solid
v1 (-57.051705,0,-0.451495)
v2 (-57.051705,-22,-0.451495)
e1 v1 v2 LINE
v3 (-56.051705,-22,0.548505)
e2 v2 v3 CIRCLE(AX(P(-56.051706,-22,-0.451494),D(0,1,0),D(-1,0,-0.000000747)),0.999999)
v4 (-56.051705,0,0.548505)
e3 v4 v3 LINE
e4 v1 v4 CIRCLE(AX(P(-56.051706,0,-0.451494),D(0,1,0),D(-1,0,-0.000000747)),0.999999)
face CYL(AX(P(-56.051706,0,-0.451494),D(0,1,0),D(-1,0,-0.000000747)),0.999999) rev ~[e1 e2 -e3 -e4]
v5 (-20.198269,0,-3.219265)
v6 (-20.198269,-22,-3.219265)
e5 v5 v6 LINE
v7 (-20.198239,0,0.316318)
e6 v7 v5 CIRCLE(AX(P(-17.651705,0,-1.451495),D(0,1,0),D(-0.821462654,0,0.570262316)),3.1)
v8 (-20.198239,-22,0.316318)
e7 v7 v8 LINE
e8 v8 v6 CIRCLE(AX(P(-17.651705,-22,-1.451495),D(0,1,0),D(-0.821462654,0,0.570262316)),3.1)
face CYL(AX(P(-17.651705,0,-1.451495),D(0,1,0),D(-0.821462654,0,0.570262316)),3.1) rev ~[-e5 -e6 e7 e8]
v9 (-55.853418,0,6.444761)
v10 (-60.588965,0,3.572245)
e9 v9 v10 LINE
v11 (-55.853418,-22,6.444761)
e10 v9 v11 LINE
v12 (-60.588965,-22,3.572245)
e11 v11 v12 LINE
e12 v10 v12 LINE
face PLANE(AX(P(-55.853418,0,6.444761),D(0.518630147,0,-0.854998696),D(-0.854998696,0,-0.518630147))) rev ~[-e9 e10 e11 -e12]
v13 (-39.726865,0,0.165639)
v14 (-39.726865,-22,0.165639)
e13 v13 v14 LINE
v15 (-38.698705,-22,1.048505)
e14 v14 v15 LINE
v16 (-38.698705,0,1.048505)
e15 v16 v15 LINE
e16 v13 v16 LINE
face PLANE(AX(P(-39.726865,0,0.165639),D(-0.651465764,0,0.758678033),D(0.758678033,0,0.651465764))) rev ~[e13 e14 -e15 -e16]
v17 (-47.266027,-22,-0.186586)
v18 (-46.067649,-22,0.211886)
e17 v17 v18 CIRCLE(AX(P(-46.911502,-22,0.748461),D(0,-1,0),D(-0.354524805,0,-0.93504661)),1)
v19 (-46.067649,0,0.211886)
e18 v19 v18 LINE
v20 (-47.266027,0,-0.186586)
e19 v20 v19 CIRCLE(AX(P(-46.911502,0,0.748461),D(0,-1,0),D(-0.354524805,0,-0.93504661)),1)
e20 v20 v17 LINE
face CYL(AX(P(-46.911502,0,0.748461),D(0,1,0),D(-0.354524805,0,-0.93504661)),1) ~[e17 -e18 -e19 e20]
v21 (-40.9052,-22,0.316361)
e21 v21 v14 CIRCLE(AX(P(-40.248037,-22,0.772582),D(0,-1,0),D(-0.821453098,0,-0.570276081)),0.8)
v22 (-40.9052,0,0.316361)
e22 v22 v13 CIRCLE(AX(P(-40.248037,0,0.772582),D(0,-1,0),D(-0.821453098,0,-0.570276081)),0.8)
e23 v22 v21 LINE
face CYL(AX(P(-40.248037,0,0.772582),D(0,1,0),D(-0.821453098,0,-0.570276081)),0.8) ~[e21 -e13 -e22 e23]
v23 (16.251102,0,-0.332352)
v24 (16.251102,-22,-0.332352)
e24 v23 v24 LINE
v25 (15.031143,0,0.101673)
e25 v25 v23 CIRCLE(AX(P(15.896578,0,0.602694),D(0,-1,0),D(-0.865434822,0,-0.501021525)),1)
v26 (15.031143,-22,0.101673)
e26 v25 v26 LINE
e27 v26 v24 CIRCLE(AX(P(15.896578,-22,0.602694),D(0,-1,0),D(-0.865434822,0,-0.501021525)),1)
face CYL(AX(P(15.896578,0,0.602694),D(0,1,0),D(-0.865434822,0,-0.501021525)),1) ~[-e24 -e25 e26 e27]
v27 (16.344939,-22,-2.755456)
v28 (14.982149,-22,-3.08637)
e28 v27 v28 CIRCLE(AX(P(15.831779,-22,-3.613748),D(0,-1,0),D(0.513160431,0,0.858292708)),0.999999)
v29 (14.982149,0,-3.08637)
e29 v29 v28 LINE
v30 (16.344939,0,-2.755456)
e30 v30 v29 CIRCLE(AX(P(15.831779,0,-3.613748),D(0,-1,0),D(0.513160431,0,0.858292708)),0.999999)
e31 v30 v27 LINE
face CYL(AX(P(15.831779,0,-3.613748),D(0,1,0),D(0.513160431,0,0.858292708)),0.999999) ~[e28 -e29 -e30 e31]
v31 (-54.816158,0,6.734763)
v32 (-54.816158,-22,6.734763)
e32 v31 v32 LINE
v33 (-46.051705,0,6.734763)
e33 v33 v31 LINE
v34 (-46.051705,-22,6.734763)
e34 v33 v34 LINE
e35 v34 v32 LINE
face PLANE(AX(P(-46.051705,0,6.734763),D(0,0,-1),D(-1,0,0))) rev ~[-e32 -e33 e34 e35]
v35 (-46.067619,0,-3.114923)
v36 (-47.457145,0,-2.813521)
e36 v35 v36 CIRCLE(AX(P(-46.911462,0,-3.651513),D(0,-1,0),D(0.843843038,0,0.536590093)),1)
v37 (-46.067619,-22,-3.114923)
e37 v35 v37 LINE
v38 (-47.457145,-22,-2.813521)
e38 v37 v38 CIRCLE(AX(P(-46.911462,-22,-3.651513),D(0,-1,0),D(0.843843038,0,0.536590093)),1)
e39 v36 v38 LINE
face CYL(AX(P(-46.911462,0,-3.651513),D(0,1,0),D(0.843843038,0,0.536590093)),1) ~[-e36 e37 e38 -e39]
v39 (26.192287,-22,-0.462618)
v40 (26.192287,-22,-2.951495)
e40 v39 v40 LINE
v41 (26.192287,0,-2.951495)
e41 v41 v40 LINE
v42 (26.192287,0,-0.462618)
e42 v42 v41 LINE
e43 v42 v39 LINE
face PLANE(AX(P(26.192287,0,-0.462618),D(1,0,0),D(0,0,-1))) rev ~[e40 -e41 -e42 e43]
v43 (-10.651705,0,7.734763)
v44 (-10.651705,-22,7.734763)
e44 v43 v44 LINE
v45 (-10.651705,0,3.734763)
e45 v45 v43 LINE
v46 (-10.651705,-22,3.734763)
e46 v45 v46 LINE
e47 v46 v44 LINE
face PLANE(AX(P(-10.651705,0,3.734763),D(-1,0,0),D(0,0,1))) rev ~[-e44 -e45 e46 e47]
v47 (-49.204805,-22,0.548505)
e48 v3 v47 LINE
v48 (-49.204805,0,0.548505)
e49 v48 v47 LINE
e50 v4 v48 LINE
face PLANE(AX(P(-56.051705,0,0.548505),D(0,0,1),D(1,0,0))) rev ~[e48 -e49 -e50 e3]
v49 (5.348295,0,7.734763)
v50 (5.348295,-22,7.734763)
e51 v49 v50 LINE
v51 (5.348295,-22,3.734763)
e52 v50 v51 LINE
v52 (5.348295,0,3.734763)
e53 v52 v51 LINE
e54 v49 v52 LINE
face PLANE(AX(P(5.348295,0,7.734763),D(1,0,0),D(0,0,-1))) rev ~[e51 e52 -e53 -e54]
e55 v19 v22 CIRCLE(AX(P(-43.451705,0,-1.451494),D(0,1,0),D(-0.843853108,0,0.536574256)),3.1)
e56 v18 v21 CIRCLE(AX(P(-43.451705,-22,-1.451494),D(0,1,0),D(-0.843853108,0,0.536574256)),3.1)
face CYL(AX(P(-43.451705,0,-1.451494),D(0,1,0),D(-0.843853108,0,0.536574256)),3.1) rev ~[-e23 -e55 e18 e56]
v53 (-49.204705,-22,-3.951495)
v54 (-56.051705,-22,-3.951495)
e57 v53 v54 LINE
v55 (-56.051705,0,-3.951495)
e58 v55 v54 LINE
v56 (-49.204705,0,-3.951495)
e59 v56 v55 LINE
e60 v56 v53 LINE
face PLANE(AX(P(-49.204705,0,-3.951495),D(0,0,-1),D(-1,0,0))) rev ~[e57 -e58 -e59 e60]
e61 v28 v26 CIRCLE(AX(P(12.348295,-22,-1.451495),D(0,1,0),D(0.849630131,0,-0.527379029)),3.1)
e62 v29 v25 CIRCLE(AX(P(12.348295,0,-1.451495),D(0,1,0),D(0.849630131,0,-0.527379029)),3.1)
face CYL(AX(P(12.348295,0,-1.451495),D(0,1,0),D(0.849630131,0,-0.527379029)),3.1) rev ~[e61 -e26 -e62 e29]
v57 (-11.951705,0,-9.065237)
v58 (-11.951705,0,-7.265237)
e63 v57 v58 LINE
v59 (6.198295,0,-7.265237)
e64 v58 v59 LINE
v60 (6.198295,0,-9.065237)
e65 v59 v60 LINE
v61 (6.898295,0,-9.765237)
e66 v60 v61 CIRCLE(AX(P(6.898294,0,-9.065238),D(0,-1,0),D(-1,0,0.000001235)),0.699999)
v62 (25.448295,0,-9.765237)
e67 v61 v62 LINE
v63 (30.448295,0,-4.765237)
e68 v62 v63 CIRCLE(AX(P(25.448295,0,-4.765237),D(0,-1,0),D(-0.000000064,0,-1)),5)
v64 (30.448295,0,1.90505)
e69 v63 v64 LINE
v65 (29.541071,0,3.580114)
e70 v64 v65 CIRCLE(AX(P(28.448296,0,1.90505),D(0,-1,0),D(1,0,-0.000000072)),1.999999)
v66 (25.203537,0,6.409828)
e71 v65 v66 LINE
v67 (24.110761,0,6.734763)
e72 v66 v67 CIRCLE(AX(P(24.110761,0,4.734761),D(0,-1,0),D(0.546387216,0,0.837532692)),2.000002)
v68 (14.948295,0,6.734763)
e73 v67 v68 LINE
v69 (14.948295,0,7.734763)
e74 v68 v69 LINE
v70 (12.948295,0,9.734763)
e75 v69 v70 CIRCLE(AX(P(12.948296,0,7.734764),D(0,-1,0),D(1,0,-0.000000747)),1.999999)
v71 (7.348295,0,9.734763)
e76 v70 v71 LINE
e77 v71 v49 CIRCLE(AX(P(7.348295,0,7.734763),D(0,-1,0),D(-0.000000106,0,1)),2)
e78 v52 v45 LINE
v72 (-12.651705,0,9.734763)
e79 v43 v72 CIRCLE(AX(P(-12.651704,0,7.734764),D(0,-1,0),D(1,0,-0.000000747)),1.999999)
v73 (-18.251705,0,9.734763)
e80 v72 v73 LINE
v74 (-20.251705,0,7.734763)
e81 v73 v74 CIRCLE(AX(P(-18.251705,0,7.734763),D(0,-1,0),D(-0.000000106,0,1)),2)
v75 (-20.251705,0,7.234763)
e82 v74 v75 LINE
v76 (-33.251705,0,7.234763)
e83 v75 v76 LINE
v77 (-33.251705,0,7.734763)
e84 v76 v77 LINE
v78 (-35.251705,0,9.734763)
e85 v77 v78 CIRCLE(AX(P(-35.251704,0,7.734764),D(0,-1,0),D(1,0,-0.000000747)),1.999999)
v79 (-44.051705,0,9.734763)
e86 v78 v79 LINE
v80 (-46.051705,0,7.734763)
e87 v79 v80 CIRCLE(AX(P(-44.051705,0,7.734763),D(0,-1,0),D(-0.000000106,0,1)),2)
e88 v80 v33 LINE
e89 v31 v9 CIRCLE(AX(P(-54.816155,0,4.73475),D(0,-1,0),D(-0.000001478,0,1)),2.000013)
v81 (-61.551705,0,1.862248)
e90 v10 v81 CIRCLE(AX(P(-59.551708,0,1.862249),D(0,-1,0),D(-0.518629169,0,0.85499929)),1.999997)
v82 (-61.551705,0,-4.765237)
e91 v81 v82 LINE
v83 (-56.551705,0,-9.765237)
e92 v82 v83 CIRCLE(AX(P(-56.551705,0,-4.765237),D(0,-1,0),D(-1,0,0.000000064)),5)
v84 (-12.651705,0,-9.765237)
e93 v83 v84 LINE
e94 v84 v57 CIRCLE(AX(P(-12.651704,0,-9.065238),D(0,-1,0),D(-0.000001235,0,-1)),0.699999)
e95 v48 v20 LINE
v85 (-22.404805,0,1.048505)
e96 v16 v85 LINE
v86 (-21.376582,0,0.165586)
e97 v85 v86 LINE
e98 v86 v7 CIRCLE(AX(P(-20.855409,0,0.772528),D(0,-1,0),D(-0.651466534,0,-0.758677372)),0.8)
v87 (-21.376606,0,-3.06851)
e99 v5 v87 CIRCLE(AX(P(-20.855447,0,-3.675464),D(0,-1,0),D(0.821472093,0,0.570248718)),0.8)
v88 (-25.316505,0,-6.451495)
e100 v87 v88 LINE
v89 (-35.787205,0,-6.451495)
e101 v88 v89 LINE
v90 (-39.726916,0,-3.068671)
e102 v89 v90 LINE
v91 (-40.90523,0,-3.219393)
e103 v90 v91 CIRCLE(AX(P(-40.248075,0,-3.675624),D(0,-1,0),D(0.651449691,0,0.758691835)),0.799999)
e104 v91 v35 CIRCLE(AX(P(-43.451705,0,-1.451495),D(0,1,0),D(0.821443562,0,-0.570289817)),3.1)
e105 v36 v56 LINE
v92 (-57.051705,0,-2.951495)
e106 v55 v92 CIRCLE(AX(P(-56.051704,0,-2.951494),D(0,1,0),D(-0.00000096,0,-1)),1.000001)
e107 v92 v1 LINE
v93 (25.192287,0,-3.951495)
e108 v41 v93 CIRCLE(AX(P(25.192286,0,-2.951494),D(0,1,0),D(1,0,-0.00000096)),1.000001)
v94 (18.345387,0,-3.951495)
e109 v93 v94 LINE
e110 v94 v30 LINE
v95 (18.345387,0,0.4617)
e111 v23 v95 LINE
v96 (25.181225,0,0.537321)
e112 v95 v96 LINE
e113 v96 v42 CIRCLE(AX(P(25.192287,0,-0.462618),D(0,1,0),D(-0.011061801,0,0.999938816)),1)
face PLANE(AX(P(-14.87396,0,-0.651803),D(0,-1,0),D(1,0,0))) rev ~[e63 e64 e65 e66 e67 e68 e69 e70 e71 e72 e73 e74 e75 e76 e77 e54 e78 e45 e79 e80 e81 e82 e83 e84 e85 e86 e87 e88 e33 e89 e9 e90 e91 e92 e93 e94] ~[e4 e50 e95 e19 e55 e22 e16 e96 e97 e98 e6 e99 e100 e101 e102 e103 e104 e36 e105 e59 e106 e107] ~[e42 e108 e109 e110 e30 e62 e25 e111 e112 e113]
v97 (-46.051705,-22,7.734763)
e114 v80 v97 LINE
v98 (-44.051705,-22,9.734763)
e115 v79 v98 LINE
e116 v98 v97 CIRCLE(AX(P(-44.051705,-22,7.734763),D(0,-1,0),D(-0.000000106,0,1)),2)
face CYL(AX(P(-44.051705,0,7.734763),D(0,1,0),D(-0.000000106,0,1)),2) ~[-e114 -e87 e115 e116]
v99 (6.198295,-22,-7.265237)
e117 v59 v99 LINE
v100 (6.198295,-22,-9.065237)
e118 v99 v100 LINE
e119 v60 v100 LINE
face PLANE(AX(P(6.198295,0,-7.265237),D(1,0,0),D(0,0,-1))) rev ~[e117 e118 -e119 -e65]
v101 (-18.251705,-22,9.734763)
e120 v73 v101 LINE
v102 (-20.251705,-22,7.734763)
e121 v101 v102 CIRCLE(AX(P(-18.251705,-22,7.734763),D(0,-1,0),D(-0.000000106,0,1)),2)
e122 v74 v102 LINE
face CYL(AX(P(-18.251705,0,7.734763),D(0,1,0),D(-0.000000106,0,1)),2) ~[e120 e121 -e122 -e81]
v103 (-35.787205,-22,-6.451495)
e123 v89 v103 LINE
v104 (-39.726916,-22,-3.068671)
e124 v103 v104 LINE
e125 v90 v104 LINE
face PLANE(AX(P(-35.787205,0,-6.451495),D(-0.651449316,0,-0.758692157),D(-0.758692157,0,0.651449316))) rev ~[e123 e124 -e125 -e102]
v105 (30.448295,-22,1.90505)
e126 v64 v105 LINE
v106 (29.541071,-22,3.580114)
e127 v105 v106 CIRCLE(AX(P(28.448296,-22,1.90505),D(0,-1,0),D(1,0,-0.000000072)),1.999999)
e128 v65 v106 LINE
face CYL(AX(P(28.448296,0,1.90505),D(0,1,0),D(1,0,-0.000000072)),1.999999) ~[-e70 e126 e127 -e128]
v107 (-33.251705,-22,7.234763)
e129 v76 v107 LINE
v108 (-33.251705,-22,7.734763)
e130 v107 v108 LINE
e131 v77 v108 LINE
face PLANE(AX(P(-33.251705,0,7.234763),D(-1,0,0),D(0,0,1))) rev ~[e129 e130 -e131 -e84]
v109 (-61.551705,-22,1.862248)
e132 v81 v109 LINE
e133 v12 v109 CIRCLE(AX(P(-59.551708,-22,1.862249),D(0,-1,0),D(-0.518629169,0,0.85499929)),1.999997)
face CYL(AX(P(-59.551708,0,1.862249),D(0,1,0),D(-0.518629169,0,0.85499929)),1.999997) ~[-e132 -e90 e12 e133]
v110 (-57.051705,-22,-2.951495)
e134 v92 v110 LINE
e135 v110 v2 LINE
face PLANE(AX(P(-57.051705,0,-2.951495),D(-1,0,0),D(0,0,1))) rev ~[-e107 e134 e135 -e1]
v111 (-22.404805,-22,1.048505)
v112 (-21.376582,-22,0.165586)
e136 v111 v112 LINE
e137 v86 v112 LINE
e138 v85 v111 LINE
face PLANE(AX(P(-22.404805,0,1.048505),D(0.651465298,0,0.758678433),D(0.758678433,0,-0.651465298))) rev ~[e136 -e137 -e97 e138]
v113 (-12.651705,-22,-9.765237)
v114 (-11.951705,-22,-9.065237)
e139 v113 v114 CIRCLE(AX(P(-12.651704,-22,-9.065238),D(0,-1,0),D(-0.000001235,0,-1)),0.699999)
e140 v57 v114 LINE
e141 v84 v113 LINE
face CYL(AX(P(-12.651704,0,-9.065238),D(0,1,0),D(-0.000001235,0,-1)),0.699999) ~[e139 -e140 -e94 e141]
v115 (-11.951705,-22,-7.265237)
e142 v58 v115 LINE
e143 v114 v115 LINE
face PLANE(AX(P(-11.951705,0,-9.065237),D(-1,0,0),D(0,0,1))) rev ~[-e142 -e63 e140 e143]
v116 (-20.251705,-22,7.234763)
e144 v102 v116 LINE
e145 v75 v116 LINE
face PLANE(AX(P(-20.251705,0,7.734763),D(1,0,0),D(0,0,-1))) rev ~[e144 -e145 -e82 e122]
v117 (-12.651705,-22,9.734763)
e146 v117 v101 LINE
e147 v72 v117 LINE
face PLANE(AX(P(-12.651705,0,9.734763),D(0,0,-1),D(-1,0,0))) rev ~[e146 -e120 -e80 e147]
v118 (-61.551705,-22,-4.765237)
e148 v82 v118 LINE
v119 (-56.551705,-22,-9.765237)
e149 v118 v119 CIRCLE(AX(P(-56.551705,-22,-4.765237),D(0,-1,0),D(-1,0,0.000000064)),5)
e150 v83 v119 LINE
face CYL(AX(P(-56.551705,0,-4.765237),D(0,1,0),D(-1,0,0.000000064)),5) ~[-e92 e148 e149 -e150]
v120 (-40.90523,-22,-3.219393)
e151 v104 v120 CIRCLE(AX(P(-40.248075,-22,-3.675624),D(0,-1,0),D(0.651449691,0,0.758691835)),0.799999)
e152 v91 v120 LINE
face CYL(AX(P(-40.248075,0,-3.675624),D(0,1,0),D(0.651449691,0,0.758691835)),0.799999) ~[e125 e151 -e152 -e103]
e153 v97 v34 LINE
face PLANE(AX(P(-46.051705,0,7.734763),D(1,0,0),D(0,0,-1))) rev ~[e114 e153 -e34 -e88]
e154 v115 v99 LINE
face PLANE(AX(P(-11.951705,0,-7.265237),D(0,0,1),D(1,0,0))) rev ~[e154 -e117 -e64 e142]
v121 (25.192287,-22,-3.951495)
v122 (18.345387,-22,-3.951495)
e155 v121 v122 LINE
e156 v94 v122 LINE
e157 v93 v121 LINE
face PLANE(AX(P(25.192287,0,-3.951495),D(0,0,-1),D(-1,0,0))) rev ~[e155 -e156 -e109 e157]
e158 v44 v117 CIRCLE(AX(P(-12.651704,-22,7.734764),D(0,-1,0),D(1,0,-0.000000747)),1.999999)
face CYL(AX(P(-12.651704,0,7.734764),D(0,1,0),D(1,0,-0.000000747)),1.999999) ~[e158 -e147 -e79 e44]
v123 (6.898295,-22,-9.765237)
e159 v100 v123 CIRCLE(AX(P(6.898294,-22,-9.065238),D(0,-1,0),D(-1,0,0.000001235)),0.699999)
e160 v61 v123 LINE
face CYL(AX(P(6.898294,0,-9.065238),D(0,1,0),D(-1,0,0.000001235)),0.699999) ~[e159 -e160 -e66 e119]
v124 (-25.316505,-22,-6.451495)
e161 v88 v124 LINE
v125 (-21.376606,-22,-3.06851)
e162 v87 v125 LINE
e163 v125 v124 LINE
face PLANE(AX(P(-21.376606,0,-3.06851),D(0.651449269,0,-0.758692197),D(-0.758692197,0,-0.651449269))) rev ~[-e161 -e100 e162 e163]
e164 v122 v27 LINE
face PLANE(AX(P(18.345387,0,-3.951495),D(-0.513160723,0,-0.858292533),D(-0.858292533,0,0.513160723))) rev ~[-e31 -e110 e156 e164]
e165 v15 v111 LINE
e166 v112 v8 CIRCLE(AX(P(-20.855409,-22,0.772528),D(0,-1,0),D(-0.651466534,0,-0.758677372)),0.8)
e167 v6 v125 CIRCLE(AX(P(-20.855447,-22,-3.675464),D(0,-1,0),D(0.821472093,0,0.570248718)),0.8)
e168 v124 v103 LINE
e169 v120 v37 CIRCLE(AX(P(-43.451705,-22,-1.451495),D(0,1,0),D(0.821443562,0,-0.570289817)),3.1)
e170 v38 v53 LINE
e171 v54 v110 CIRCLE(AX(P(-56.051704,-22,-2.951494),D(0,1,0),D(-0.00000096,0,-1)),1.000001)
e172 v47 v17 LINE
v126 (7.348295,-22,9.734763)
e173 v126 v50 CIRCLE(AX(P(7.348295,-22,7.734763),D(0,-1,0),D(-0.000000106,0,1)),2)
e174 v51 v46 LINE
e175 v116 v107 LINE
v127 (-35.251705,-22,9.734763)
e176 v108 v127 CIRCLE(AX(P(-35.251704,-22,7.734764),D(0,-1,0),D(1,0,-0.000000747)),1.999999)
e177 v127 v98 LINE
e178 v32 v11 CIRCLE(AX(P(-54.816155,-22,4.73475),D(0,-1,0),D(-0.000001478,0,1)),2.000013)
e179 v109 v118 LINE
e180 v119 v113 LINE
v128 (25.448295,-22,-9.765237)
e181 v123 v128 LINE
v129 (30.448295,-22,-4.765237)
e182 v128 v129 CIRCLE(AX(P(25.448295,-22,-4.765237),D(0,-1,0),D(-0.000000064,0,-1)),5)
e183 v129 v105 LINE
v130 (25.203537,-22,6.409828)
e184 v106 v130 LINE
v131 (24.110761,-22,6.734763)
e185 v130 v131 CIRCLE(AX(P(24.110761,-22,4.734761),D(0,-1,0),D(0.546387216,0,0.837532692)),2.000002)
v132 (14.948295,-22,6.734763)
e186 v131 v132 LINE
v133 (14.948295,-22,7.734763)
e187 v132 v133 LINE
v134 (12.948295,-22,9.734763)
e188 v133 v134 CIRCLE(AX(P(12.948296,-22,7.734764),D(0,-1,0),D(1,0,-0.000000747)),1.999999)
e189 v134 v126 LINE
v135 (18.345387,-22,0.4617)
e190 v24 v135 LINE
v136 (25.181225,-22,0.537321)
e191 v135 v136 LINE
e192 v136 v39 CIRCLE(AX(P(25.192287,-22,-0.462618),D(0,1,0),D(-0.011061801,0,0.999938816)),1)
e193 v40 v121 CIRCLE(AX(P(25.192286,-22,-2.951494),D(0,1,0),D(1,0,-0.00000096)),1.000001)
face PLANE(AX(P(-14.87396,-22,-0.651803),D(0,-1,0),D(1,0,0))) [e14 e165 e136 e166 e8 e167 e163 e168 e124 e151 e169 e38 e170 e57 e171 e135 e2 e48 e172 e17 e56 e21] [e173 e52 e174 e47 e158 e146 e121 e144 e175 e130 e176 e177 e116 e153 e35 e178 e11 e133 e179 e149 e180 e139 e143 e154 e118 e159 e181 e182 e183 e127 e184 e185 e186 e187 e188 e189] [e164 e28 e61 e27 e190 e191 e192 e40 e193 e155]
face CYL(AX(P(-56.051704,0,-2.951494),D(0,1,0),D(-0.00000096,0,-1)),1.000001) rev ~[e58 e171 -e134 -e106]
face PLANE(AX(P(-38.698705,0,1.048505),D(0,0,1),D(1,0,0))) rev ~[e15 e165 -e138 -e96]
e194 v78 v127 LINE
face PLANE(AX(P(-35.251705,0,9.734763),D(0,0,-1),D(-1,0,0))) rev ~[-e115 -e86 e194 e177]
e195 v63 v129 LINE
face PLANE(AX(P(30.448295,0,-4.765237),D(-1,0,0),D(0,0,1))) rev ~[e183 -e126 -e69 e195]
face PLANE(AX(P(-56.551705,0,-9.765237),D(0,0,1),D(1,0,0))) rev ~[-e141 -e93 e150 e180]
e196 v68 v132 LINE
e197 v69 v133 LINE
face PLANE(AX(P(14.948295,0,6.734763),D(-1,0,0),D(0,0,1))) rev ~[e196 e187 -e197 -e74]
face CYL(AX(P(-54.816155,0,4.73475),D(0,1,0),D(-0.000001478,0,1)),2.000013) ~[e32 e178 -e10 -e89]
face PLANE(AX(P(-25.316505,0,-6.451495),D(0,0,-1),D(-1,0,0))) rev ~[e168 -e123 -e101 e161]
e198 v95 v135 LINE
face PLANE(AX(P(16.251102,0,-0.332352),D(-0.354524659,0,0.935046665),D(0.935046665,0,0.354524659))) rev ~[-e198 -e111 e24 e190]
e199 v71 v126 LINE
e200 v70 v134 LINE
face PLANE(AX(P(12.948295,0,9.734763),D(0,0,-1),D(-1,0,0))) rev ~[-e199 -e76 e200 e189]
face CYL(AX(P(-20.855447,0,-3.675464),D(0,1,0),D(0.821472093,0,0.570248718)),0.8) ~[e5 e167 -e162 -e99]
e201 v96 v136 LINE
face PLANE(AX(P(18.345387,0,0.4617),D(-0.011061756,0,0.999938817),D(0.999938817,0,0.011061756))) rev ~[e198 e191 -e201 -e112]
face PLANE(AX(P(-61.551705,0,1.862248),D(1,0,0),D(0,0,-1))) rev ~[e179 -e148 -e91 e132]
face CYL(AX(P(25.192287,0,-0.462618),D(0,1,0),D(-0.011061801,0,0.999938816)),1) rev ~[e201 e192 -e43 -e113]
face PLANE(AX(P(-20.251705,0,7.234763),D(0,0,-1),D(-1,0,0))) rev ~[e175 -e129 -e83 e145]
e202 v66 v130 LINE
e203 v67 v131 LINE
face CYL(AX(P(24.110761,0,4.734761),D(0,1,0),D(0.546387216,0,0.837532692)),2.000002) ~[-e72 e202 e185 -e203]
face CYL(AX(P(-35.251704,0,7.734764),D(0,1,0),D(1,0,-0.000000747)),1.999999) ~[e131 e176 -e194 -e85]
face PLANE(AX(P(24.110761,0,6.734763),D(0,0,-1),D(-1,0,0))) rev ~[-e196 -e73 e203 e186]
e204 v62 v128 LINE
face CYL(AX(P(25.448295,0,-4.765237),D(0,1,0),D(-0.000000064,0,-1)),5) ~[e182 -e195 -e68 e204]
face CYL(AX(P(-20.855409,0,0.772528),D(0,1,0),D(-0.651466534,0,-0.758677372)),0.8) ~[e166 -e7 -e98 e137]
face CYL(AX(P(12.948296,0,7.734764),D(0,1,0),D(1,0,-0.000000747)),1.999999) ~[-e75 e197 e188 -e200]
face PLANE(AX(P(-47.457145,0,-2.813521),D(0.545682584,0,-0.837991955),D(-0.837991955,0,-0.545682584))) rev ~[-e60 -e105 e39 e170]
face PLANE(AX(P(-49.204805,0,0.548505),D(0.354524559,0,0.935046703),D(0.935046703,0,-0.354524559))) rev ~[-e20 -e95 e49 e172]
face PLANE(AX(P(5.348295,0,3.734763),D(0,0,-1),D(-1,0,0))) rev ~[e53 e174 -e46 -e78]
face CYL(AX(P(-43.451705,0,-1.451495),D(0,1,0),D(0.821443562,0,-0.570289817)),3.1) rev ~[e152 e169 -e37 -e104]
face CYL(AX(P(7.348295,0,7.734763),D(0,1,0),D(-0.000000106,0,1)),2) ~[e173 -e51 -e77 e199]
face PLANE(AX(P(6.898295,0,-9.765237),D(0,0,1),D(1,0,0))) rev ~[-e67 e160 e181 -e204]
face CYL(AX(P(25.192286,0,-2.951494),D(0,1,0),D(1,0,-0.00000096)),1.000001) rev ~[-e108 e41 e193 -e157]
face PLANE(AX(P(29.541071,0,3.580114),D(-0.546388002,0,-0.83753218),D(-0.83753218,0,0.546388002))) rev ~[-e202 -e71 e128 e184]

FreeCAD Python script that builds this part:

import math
import FreeCAD as App
import Part
import Sketcher

doc = App.newDocument("Part")
body = doc.addObject("PartDesign::Body", "Body")

sketch1 = body.newObject("Sketcher::SketchObject", "Sketch")
sketch1.AttachmentSupport = (doc.getObject("XZ_Plane"), [""])
sketch1.MapMode = "FlatFace"
sketch1.addGeometry(Part.LineSegment(App.Vector(-35.251705, 9.734763, 0), App.Vector(-44.051705, 9.734763, 0)), False)
sketch1.addGeometry(Part.ArcOfCircle(Part.Circle(App.Vector(-44.051705, 7.734763, 0), App.Vector(0, 0, 1), 2), math.radians(90.000006), math.radians(179.999994)), False)
sketch1.addGeometry(Part.LineSegment(App.Vector(-46.051705, 7.734763, 0), App.Vector(-46.051705, 6.734763, 0)), False)
sketch1.addGeometry(Part.LineSegment(App.Vector(-46.051705, 6.734763, 0), App.Vector(-54.816158, 6.734763, 0)), False)
sketch1.addGeometry(Part.ArcOfCircle(Part.Circle(App.Vector(-54.816155, 4.73475, 0), App.Vector(0, 0, 1), 2.000013), math.radians(90.000085), math.radians(121.240271)), False)
sketch1.addGeometry(Part.LineSegment(App.Vector(-55.853418, 6.444761, 0), App.Vector(-60.588965, 3.572245, 0)), False)
sketch1.addGeometry(Part.ArcOfCircle(Part.Circle(App.Vector(-59.551708, 1.862249, 0), App.Vector(0, 0, 1), 1.999997), math.radians(121.240344), math.radians(180.000039)), False)
sketch1.addGeometry(Part.LineSegment(App.Vector(-61.551705, 1.862248, 0), App.Vector(-61.551705, -4.765237, 0)), False)
sketch1.addGeometry(Part.ArcOfCircle(Part.Circle(App.Vector(-56.551705, -4.765237, 0), App.Vector(0, 0, 1), 5), math.radians(179.999996), math.radians(270.000004)), False)
sketch1.addGeometry(Part.LineSegment(App.Vector(-56.551705, -9.765237, 0), App.Vector(-12.651705, -9.765237, 0)), False)
sketch1.addGeometry(Part.ArcOfCircle(Part.Circle(App.Vector(-12.651704, -9.065238, 0), App.Vector(0, 0, 1), 0.699999), math.radians(-90.000071), math.radians(0.000071)), False)
sketch1.addGeometry(Part.LineSegment(App.Vector(-11.951705, -9.065237, 0), App.Vector(-11.951705, -7.265237, 0)), False)
sketch1.addGeometry(Part.LineSegment(App.Vector(-11.951705, -7.265237, 0), App.Vector(6.198295, -7.265237, 0)), False)
sketch1.addGeometry(Part.LineSegment(App.Vector(6.198295, -7.265237, 0), App.Vector(6.198295, -9.065237, 0)), False)
sketch1.addGeometry(Part.ArcOfCircle(Part.Circle(App.Vector(6.898294, -9.065238, 0), App.Vector(0, 0, 1), 0.699999), math.radians(179.999929), math.radians(270.000071)), False)
sketch1.addGeometry(Part.LineSegment(App.Vector(6.898295, -9.765237, 0), App.Vector(25.448295, -9.765237, 0)), False)
sketch1.addGeometry(Part.ArcOfCircle(Part.Circle(App.Vector(25.448295, -4.765237, 0), App.Vector(0, 0, 1), 5), math.radians(-90.000004), math.radians(0.000004)), False)
sketch1.addGeometry(Part.LineSegment(App.Vector(30.448295, -4.765237, 0), App.Vector(30.448295, 1.90505, 0)), False)
sketch1.addGeometry(Part.ArcOfCircle(Part.Circle(App.Vector(28.448296, 1.90505, 0), App.Vector(0, 0, 1), 1.999999), math.radians(-0.000004), math.radians(56.880449)), False)
sketch1.addGeometry(Part.LineSegment(App.Vector(29.541071, 3.580114, 0), App.Vector(25.203537, 6.409828, 0)), False)
sketch1.addGeometry(Part.ArcOfCircle(Part.Circle(App.Vector(24.110761, 4.734761, 0), App.Vector(0, 0, 1), 2.000002), math.radians(56.880488), math.radians(90.000008)), False)
sketch1.addGeometry(Part.LineSegment(App.Vector(24.110761, 6.734763, 0), App.Vector(14.948295, 6.734763, 0)), False)
sketch1.addGeometry(Part.LineSegment(App.Vector(14.948295, 6.734763, 0), App.Vector(14.948295, 7.734763, 0)), False)
sketch1.addGeometry(Part.ArcOfCircle(Part.Circle(App.Vector(12.948296, 7.734764, 0), App.Vector(0, 0, 1), 1.999999), math.radians(-0.000043), math.radians(90.000043)), False)
sketch1.addGeometry(Part.LineSegment(App.Vector(12.948295, 9.734763, 0), App.Vector(7.348295, 9.734763, 0)), False)
sketch1.addGeometry(Part.ArcOfCircle(Part.Circle(App.Vector(7.348295, 7.734763, 0), App.Vector(0, 0, 1), 2), math.radians(90.000006), math.radians(179.999994)), False)
sketch1.addGeometry(Part.LineSegment(App.Vector(5.348295, 7.734763, 0), App.Vector(5.348295, 3.734763, 0)), False)
sketch1.addGeometry(Part.LineSegment(App.Vector(5.348295, 3.734763, 0), App.Vector(-10.651705, 3.734763, 0)), False)
sketch1.addGeometry(Part.LineSegment(App.Vector(-10.651705, 3.734763, 0), App.Vector(-10.651705, 7.734763, 0)), False)
sketch1.addGeometry(Part.ArcOfCircle(Part.Circle(App.Vector(-12.651704, 7.734764, 0), App.Vector(0, 0, 1), 1.999999), math.radians(-0.000043), math.radians(90.000043)), False)
sketch1.addGeometry(Part.LineSegment(App.Vector(-12.651705, 9.734763, 0), App.Vector(-18.251705, 9.734763, 0)), False)
sketch1.addGeometry(Part.ArcOfCircle(Part.Circle(App.Vector(-18.251705, 7.734763, 0), App.Vector(0, 0, 1), 2), math.radians(90.000006), math.radians(179.999994)), False)
sketch1.addGeometry(Part.LineSegment(App.Vector(-20.251705, 7.734763, 0), App.Vector(-20.251705, 7.234763, 0)), False)
sketch1.addGeometry(Part.LineSegment(App.Vector(-20.251705, 7.234763, 0), App.Vector(-33.251705, 7.234763, 0)), False)
sketch1.addGeometry(Part.LineSegment(App.Vector(-33.251705, 7.234763, 0), App.Vector(-33.251705, 7.734763, 0)), False)
sketch1.addGeometry(Part.ArcOfCircle(Part.Circle(App.Vector(-35.251704, 7.734764, 0), App.Vector(0, 0, 1), 1.999999), math.radians(-0.000043), math.radians(90.000043)), False)
sketch1.addGeometry(Part.ArcOfCircle(Part.Circle(App.Vector(-40.248075, -3.675624, 0), App.Vector(0, 0, 1), 0.799999), math.radians(49.349008), math.radians(145.229606)), False)
sketch1.addGeometry(Part.ArcOfCircle(Part.Circle(App.Vector(-43.451705, -1.451495, 0), App.Vector(0, 0, 1), 3.1), math.radians(-147.548207), math.radians(-34.770438)), False)
sketch1.addGeometry(Part.ArcOfCircle(Part.Circle(App.Vector(-46.911462, -3.651513, 0), App.Vector(0, 0, 1), 1), math.radians(32.451812), math.radians(123.071317)), False)
sketch1.addGeometry(Part.LineSegment(App.Vector(-47.457145, -2.813521, 0), App.Vector(-49.204705, -3.951495, 0)), False)
sketch1.addGeometry(Part.LineSegment(App.Vector(-49.204705, -3.951495, 0), App.Vector(-56.051705, -3.951495, 0)), False)
sketch1.addGeometry(Part.ArcOfCircle(Part.Circle(App.Vector(-56.051704, -2.951494, 0), App.Vector(0, 0, 1), 1.000001), math.radians(-179.999945), math.radians(-90.000055)), False)
sketch1.addGeometry(Part.LineSegment(App.Vector(-57.051705, -2.951495, 0), App.Vector(-57.051705, -0.451495, 0)), False)
sketch1.addGeometry(Part.ArcOfCircle(Part.Circle(App.Vector(-56.051706, -0.451494, 0), App.Vector(0, 0, 1), 0.999999), math.radians(89.999957), math.radians(180.000043)), False)
sketch1.addGeometry(Part.LineSegment(App.Vector(-56.051705, 0.548505, 0), App.Vector(-49.204805, 0.548505, 0)), False)
sketch1.addGeometry(Part.LineSegment(App.Vector(-49.204805, 0.548505, 0), App.Vector(-47.266027, -0.186586, 0)), False)
sketch1.addGeometry(Part.ArcOfCircle(Part.Circle(App.Vector(-46.911502, 0.748461, 0), App.Vector(0, 0, 1), 1), math.radians(-110.764324), math.radians(-32.45077)), False)
sketch1.addGeometry(Part.ArcOfCircle(Part.Circle(App.Vector(-43.451705, -1.451494, 0), App.Vector(0, 0, 1), 3.1), math.radians(34.769466), math.radians(147.549263)), False)
sketch1.addGeometry(Part.ArcOfCircle(Part.Circle(App.Vector(-40.248037, 0.772582, 0), App.Vector(0, 0, 1), 0.8), math.radians(-145.23052), math.radians(-49.347837)), False)
sketch1.addGeometry(Part.LineSegment(App.Vector(-39.726865, 0.165639, 0), App.Vector(-38.698705, 1.048505, 0)), False)
sketch1.addGeometry(Part.LineSegment(App.Vector(-38.698705, 1.048505, 0), App.Vector(-22.404805, 1.048505, 0)), False)
sketch1.addGeometry(Part.LineSegment(App.Vector(-22.404805, 1.048505, 0), App.Vector(-21.376582, 0.165586, 0)), False)
sketch1.addGeometry(Part.ArcOfCircle(Part.Circle(App.Vector(-20.855409, 0.772528, 0), App.Vector(0, 0, 1), 0.8), math.radians(-130.652264), math.radians(-34.76852)), False)
sketch1.addGeometry(Part.ArcOfCircle(Part.Circle(App.Vector(-17.651705, -1.451495, 0), App.Vector(0, 0, 1), 3.1), math.radians(-145.232452), math.radians(145.23148)), False)
sketch1.addGeometry(Part.ArcOfCircle(Part.Circle(App.Vector(-20.855447, -3.675464, 0), App.Vector(0, 0, 1), 0.8), math.radians(34.767571), math.radians(130.650938)), False)
sketch1.addGeometry(Part.LineSegment(App.Vector(-21.376606, -3.06851, 0), App.Vector(-25.316505, -6.451495, 0)), False)
sketch1.addGeometry(Part.LineSegment(App.Vector(-25.316505, -6.451495, 0), App.Vector(-35.787205, -6.451495, 0)), False)
sketch1.addGeometry(Part.LineSegment(App.Vector(-35.787205, -6.451495, 0), App.Vector(-39.726916, -3.068671, 0)), False)
sketch1.addGeometry(Part.ArcOfCircle(Part.Circle(App.Vector(15.831779, -3.613748, 0), App.Vector(0, 0, 1), 0.999999), math.radians(59.125425), math.radians(148.1715)), False)
sketch1.addGeometry(Part.ArcOfCircle(Part.Circle(App.Vector(12.348295, -1.451495, 0), App.Vector(0, 0, 1), 3.1), math.radians(30.067627), math.radians(328.171463)), False)
sketch1.addGeometry(Part.ArcOfCircle(Part.Circle(App.Vector(15.896578, 0.602694, 0), App.Vector(0, 0, 1), 1), math.radians(-149.932393), math.radians(-69.235688)), False)
sketch1.addGeometry(Part.LineSegment(App.Vector(16.251102, -0.332352, 0), App.Vector(18.345387, 0.4617, 0)), False)
sketch1.addGeometry(Part.LineSegment(App.Vector(18.345387, 0.4617, 0), App.Vector(25.181225, 0.537321, 0)), False)
sketch1.addGeometry(Part.ArcOfCircle(Part.Circle(App.Vector(25.192287, -0.462618, 0), App.Vector(0, 0, 1), 1), math.radians(0.000001), math.radians(90.633807)), False)
sketch1.addGeometry(Part.LineSegment(App.Vector(26.192287, -0.462618, 0), App.Vector(26.192287, -2.951495, 0)), False)
sketch1.addGeometry(Part.ArcOfCircle(Part.Circle(App.Vector(25.192286, -2.951494, 0), App.Vector(0, 0, 1), 1.000001), math.radians(-89.999945), math.radians(-0.000055)), False)
sketch1.addGeometry(Part.LineSegment(App.Vector(25.192287, -3.951495, 0), App.Vector(18.345387, -3.951495, 0)), False)
sketch1.addGeometry(Part.LineSegment(App.Vector(18.345387, -3.951495, 0), App.Vector(16.344939, -2.755456, 0)), False)
sketch1.addConstraint(Sketcher.Constraint("Coincident", 0, 2, 1, 1))
sketch1.addConstraint(Sketcher.Constraint("Coincident", 1, 2, 2, 1))
sketch1.addConstraint(Sketcher.Constraint("Coincident", 2, 2, 3, 1))
sketch1.addConstraint(Sketcher.Constraint("Coincident", 3, 2, 4, 1))
sketch1.addConstraint(Sketcher.Constraint("Coincident", 4, 2, 5, 1))
sketch1.addConstraint(Sketcher.Constraint("Coincident", 5, 2, 6, 1))
sketch1.addConstraint(Sketcher.Constraint("Coincident", 6, 2, 7, 1))
sketch1.addConstraint(Sketcher.Constraint("Coincident", 7, 2, 8, 1))
sketch1.addConstraint(Sketcher.Constraint("Coincident", 8, 2, 9, 1))
sketch1.addConstraint(Sketcher.Constraint("Coincident", 9, 2, 10, 1))
sketch1.addConstraint(Sketcher.Constraint("Coincident", 10, 2, 11, 1))
sketch1.addConstraint(Sketcher.Constraint("Coincident", 11, 2, 12, 1))
sketch1.addConstraint(Sketcher.Constraint("Coincident", 12, 2, 13, 1))
sketch1.addConstraint(Sketcher.Constraint("Coincident", 13, 2, 14, 1))
sketch1.addConstraint(Sketcher.Constraint("Coincident", 14, 2, 15, 1))
sketch1.addConstraint(Sketcher.Constraint("Coincident", 15, 2, 16, 1))
sketch1.addConstraint(Sketcher.Constraint("Coincident", 16, 2, 17, 1))
sketch1.addConstraint(Sketcher.Constraint("Coincident", 17, 2, 18, 1))
sketch1.addConstraint(Sketcher.Constraint("Coincident", 18, 2, 19, 1))
sketch1.addConstraint(Sketcher.Constraint("Coincident", 19, 2, 20, 1))
sketch1.addConstraint(Sketcher.Constraint("Coincident", 20, 2, 21, 1))
sketch1.addConstraint(Sketcher.Constraint("Coincident", 21, 2, 22, 1))
sketch1.addConstraint(Sketcher.Constraint("Coincident", 22, 2, 23, 1))
sketch1.addConstraint(Sketcher.Constraint("Coincident", 23, 2, 24, 1))
sketch1.addConstraint(Sketcher.Constraint("Coincident", 24, 2, 25, 1))
sketch1.addConstraint(Sketcher.Constraint("Coincident", 25, 2, 26, 1))
sketch1.addConstraint(Sketcher.Constraint("Coincident", 26, 2, 27, 1))
sketch1.addConstraint(Sketcher.Constraint("Coincident", 27, 2, 28, 1))
sketch1.addConstraint(Sketcher.Constraint("Coincident", 28, 2, 29, 1))
sketch1.addConstraint(Sketcher.Constraint("Coincident", 29, 2, 30, 1))
sketch1.addConstraint(Sketcher.Constraint("Coincident", 30, 2, 31, 1))
sketch1.addConstraint(Sketcher.Constraint("Coincident", 31, 2, 32, 1))
sketch1.addConstraint(Sketcher.Constraint("Coincident", 32, 2, 33, 1))
sketch1.addConstraint(Sketcher.Constraint("Coincident", 33, 2, 34, 1))
sketch1.addConstraint(Sketcher.Constraint("Coincident", 34, 2, 35, 1))
sketch1.addConstraint(Sketcher.Constraint("Coincident", 35, 2, 0, 1))
sketch1.addConstraint(Sketcher.Constraint("Coincident", 36, 2, 37, 2))
sketch1.addConstraint(Sketcher.Constraint("Coincident", 37, 1, 38, 1))
sketch1.addConstraint(Sketcher.Constraint("Coincident", 38, 2, 39, 1))
sketch1.addConstraint(Sketcher.Constraint("Coincident", 39, 2, 40, 1))
sketch1.addConstraint(Sketcher.Constraint("Coincident", 40, 2, 41, 2))
sketch1.addConstraint(Sketcher.Constraint("Coincident", 41, 1, 42, 1))
sketch1.addConstraint(Sketcher.Constraint("Coincident", 42, 2, 43, 2))
sketch1.addConstraint(Sketcher.Constraint("Coincident", 43, 1, 44, 1))
sketch1.addConstraint(Sketcher.Constraint("Coincident", 44, 2, 45, 1))
sketch1.addConstraint(Sketcher.Constraint("Coincident", 45, 2, 46, 1))
sketch1.addConstraint(Sketcher.Constraint("Coincident", 46, 2, 47, 2))
sketch1.addConstraint(Sketcher.Constraint("Coincident", 47, 1, 48, 1))
sketch1.addConstraint(Sketcher.Constraint("Coincident", 48, 2, 49, 1))
sketch1.addConstraint(Sketcher.Constraint("Coincident", 49, 2, 50, 1))
sketch1.addConstraint(Sketcher.Constraint("Coincident", 50, 2, 51, 1))
sketch1.addConstraint(Sketcher.Constraint("Coincident", 51, 2, 52, 1))
sketch1.addConstraint(Sketcher.Constraint("Coincident", 52, 2, 53, 2))
sketch1.addConstraint(Sketcher.Constraint("Coincident", 53, 1, 54, 1))
sketch1.addConstraint(Sketcher.Constraint("Coincident", 54, 2, 55, 1))
sketch1.addConstraint(Sketcher.Constraint("Coincident", 55, 2, 56, 1))
sketch1.addConstraint(Sketcher.Constraint("Coincident", 56, 2, 57, 1))
sketch1.addConstraint(Sketcher.Constraint("Coincident", 57, 2, 36, 1))
sketch1.addConstraint(Sketcher.Constraint("Coincident", 58, 2, 59, 2))
sketch1.addConstraint(Sketcher.Constraint("Coincident", 59, 1, 60, 1))
sketch1.addConstraint(Sketcher.Constraint("Coincident", 60, 2, 61, 1))
sketch1.addConstraint(Sketcher.Constraint("Coincident", 61, 2, 62, 1))
sketch1.addConstraint(Sketcher.Constraint("Coincident", 62, 2, 63, 2))
sketch1.addConstraint(Sketcher.Constraint("Coincident", 63, 1, 64, 1))
sketch1.addConstraint(Sketcher.Constraint("Coincident", 64, 2, 65, 2))
sketch1.addConstraint(Sketcher.Constraint("Coincident", 65, 1, 66, 1))
sketch1.addConstraint(Sketcher.Constraint("Coincident", 66, 2, 67, 1))
sketch1.addConstraint(Sketcher.Constraint("Coincident", 67, 2, 58, 1))
sketch1.addConstraint(Sketcher.Constraint("Horizontal", 0))
sketch1.addConstraint(Sketcher.Constraint("Vertical", 2))
sketch1.addConstraint(Sketcher.Constraint("Horizontal", 3))
sketch1.addConstraint(Sketcher.Constraint("Vertical", 7))
sketch1.addConstraint(Sketcher.Constraint("Horizontal", 9))
sketch1.addConstraint(Sketcher.Constraint("Vertical", 11))
sketch1.addConstraint(Sketcher.Constraint("Horizontal", 12))
sketch1.addConstraint(Sketcher.Constraint("Vertical", 13))
sketch1.addConstraint(Sketcher.Constraint("Horizontal", 15))
sketch1.addConstraint(Sketcher.Constraint("Vertical", 17))
sketch1.addConstraint(Sketcher.Constraint("Horizontal", 21))
sketch1.addConstraint(Sketcher.Constraint("Vertical", 22))
sketch1.addConstraint(Sketcher.Constraint("Horizontal", 24))
sketch1.addConstraint(Sketcher.Constraint("Vertical", 26))
sketch1.addConstraint(Sketcher.Constraint("Horizontal", 27))
sketch1.addConstraint(Sketcher.Constraint("Vertical", 28))
sketch1.addConstraint(Sketcher.Constraint("Horizontal", 30))
sketch1.addConstraint(Sketcher.Constraint("Vertical", 32))
sketch1.addConstraint(Sketcher.Constraint("Horizontal", 33))
sketch1.addConstraint(Sketcher.Constraint("Vertical", 34))
sketch1.addConstraint(Sketcher.Constraint("Horizontal", 40))
sketch1.addConstraint(Sketcher.Constraint("Vertical", 42))
sketch1.addConstraint(Sketcher.Constraint("Horizontal", 44))
sketch1.addConstraint(Sketcher.Constraint("Horizontal", 50))
sketch1.addConstraint(Sketcher.Constraint("Horizontal", 56))
sketch1.addConstraint(Sketcher.Constraint("Vertical", 64))
sketch1.addConstraint(Sketcher.Constraint("Horizontal", 66))
sketch1.addConstraint(Sketcher.Constraint("Coincident", 47, 3, 37, 3))
sketch1.addConstraint(Sketcher.Constraint("Radius", 1, 2.0))
sketch1.addConstraint(Sketcher.Constraint("Radius", 8, 5.0))
sketch1.addConstraint(Sketcher.Constraint("Radius", 16, 5.0))
sketch1.addConstraint(Sketcher.Constraint("Radius", 18, 1.999999))
sketch1.addConstraint(Sketcher.Constraint("Radius", 23, 1.999999))
sketch1.addConstraint(Sketcher.Constraint("Radius", 25, 2.0))
sketch1.addConstraint(Sketcher.Constraint("Radius", 29, 1.999999))
sketch1.addConstraint(Sketcher.Constraint("Radius", 31, 2.0))
sketch1.addConstraint(Sketcher.Constraint("Radius", 35, 1.999999))
sketch1.addConstraint(Sketcher.Constraint("Radius", 38, 1.0))
sketch1.addConstraint(Sketcher.Constraint("Radius", 41, 1.000001))
sketch1.addConstraint(Sketcher.Constraint("Radius", 43, 0.999999))
sketch1.addConstraint(Sketcher.Constraint("Radius", 46, 1.0))
sketch1.addConstraint(Sketcher.Constraint("Radius", 58, 0.999999))
sketch1.addConstraint(Sketcher.Constraint("Radius", 60, 1.0))
sketch1.addConstraint(Sketcher.Constraint("Radius", 63, 1.0))
sketch1.addConstraint(Sketcher.Constraint("Radius", 65, 1.000001))
sketch1.addConstraint(Sketcher.Constraint("Radius", 10, 0.699999))
sketch1.addConstraint(Sketcher.Constraint("Radius", 14, 0.699999))
sketch1.addConstraint(Sketcher.Constraint("Radius", 36, 0.799999))
sketch1.addConstraint(Sketcher.Constraint("Radius", 37, 3.1))
sketch1.addConstraint(Sketcher.Constraint("Radius", 47, 3.1))
sketch1.addConstraint(Sketcher.Constraint("Radius", 48, 0.8))
sketch1.addConstraint(Sketcher.Constraint("Radius", 52, 0.8))
sketch1.addConstraint(Sketcher.Constraint("Radius", 53, 3.1))
sketch1.addConstraint(Sketcher.Constraint("Radius", 54, 0.8))
sketch1.addConstraint(Sketcher.Constraint("Radius", 59, 3.1))
sketch1.addConstraint(Sketcher.Constraint("DistanceX", 27, 2, 27, 1, 16.0))
sketch1.addConstraint(Sketcher.Constraint("DistanceX", 33, 2, 33, 1, 13.0))
sketch1.addConstraint(Sketcher.Constraint("DistanceY", 2, 2, 2, 1, 1.0))
sketch1.addConstraint(Sketcher.Constraint("DistanceY", 22, 1, 22, 2, 1.0))
sketch1.addConstraint(Sketcher.Constraint("DistanceY", 26, 2, 26, 1, 4.0))
sketch1.addConstraint(Sketcher.Constraint("DistanceY", 28, 1, 28, 2, 4.0))
sketch1.addConstraint(Sketcher.Constraint("DistanceX", 0, 2, 0, 1, 8.8))
sketch1.addConstraint(Sketcher.Constraint("DistanceX", 9, 1, 9, 2, 43.9))
sketch1.addConstraint(Sketcher.Constraint("DistanceX", 24, 2, 24, 1, 5.6))
sketch1.addConstraint(Sketcher.Constraint("DistanceX", 30, 2, 30, 1, 5.6))
sketch1.addConstraint(Sketcher.Constraint("DistanceY", 11, 1, 11, 2, 1.8))
sketch1.addConstraint(Sketcher.Constraint("DistanceY", 13, 2, 13, 1, 1.8))
sketch1.addConstraint(Sketcher.Constraint("DistanceY", 32, 2, 32, 1, 0.5))
sketch1.addConstraint(Sketcher.Constraint("DistanceY", 34, 1, 34, 2, 0.5))
sketch1.addConstraint(Sketcher.Constraint("DistanceY", 42, 1, 42, 2, 2.5))
sketch1.addConstraint(Sketcher.Constraint("DistanceX", 12, 1, 12, 2, 18.15))
sketch1.addConstraint(Sketcher.Constraint("DistanceX", 15, 1, 15, 2, 18.55))
sketch1.addConstraint(Sketcher.Constraint("DistanceX", 40, 2, 40, 1, 6.847))
sketch1.addConstraint(Sketcher.Constraint("DistanceX", 44, 1, 44, 2, 6.8469))
sketch1.addConstraint(Sketcher.Constraint("DistanceX", 50, 1, 50, 2, 16.2939))
sketch1.addConstraint(Sketcher.Constraint("DistanceX", 56, 2, 56, 1, 10.4707))
sketch1.addConstraint(Sketcher.Constraint("DistanceX", 66, 2, 66, 1, 6.8469))
sketch1.addConstraint(Sketcher.Constraint("Radius", 4, 2.000013))
sketch1.addConstraint(Sketcher.Constraint("Radius", 6, 1.999997))
sketch1.addConstraint(Sketcher.Constraint("Radius", 20, 2.000002))
sketch1.addConstraint(Sketcher.Constraint("Distance", 49, 1.355199))
sketch1.addConstraint(Sketcher.Constraint("DistanceX", 47, 1, -1, 1, 40.9052))
sketch1.addConstraint(Sketcher.Constraint("DistanceX", -1, 1, 60, 2, 16.251102))
sketch1.addConstraint(Sketcher.Constraint("DistanceY", -1, 1, 61, 2, 0.4617))
sketch1.addConstraint(Sketcher.Constraint("Distance", 5, 5.53866))
sketch1.addConstraint(Sketcher.Constraint("Distance", 51, 1.355282))
sketch1.addConstraint(Sketcher.Constraint("Distance", 67, 2.33073))
sketch1.addConstraint(Sketcher.Constraint("DistanceX", 3, 2, 3, 1, 8.764453))
sketch1.addConstraint(Sketcher.Constraint("DistanceX", 21, 2, 21, 1, 9.162466))
sketch1.addConstraint(Sketcher.Constraint("DistanceY", 7, 2, 7, 1, 6.627485))
sketch1.addConstraint(Sketcher.Constraint("DistanceY", 17, 1, 17, 2, 6.670287))
sketch1.addConstraint(Sketcher.Constraint("DistanceY", 64, 2, 64, 1, 2.488877))
sketch1.addConstraint(Sketcher.Constraint("DistanceY", -1, 1, 4, 3, 4.73475))
sketch1.addConstraint(Sketcher.Constraint("DistanceX", 6, 3, -1, 1, 59.551708))
sketch1.addConstraint(Sketcher.Constraint("DistanceY", -1, 1, 6, 3, 1.862249))
sketch1.addConstraint(Sketcher.Constraint("DistanceY", -1, 1, 18, 3, 1.90505))
sketch1.addConstraint(Sketcher.Constraint("DistanceX", -1, 1, 20, 3, 24.110761))
sketch1.addConstraint(Sketcher.Constraint("DistanceY", -1, 1, 20, 3, 4.734761))
sketch1.addConstraint(Sketcher.Constraint("DistanceY", -1, 1, 46, 3, 0.748461))
sketch1.addConstraint(Sketcher.Constraint("DistanceX", 52, 3, -1, 1, 20.855409))
sketch1.addConstraint(Sketcher.Constraint("DistanceX", -1, 1, 58, 3, 15.831779))
sketch1.addConstraint(Sketcher.Constraint("DistanceY", 58, 3, -1, 1, 3.613748))
sketch1.addConstraint(Sketcher.Constraint("DistanceY", 63, 3, -1, 1, 0.462618))
sketch1.addConstraint(Sketcher.Constraint("DistanceY", -1, 1, 4, 2, 6.444761))
sketch1.addConstraint(Sketcher.Constraint("DistanceY", -1, 1, 17, 2, 1.90505))
sketch1.addConstraint(Sketcher.Constraint("DistanceX", -1, 1, 18, 2, 29.541071))
sketch1.addConstraint(Sketcher.Constraint("DistanceX", -1, 1, 20, 2, 24.110761))
sketch1.addConstraint(Sketcher.Constraint("DistanceX", 36, 2, -1, 1, 40.90523))
sketch1.addConstraint(Sketcher.Constraint("DistanceX", 37, 1, -1, 1, 46.067619))
sketch1.addConstraint(Sketcher.Constraint("DistanceY", 38, 2, -1, 1, 2.813521))
sketch1.addConstraint(Sketcher.Constraint("DistanceX", 46, 2, -1, 1, 46.067649))
sketch1.addConstraint(Sketcher.Constraint("DistanceY", -1, 1, 47, 1, 0.316361))
sketch1.addConstraint(Sketcher.Constraint("DistanceY", -1, 1, 48, 2, 0.165639))
sketch1.addConstraint(Sketcher.Constraint("DistanceX", 51, 2, -1, 1, 21.376582))
sketch1.addConstraint(Sketcher.Constraint("DistanceX", 52, 2, -1, 1, 20.198239))
sketch1.addConstraint(Sketcher.Constraint("DistanceX", 53, 1, -1, 1, 20.198269))
sketch1.addConstraint(Sketcher.Constraint("DistanceY", 54, 2, -1, 1, 3.06851))
sketch1.addConstraint(Sketcher.Constraint("DistanceY", 57, 2, -1, 1, 3.068671))
sketch1.addConstraint(Sketcher.Constraint("DistanceX", -1, 1, 58, 2, 14.982149))
sketch1.addConstraint(Sketcher.Constraint("DistanceY", 60, 2, -1, 1, 0.332352))
sketch1.addConstraint(Sketcher.Constraint("DistanceY", -1, 1, 62, 2, 0.537321))
sketch1.addConstraint(Sketcher.Constraint("DistanceX", -1, 1, 67, 2, 16.344939))
sketch1.addConstraint(Sketcher.Constraint("Distance", 19, 5.178946))
sketch1.addConstraint(Sketcher.Constraint("Distance", 39, 2.085414))
sketch1.addConstraint(Sketcher.Constraint("Distance", 45, 2.073456))
sketch1.addConstraint(Sketcher.Constraint("Distance", 55, 5.193014))
sketch1.addConstraint(Sketcher.Constraint("Distance", 57, 5.192766))
sketch1.addConstraint(Sketcher.Constraint("Distance", 61, 2.239765))
sketch1.addConstraint(Sketcher.Constraint("Distance", 62, 6.836256))
sketch1.addConstraint(Sketcher.Constraint("DistanceX", 1, 3, -1, 1, 44.051705))
sketch1.addConstraint(Sketcher.Constraint("DistanceY", -1, 1, 1, 3, 7.734763))
sketch1.addConstraint(Sketcher.Constraint("DistanceX", 4, 3, -1, 1, 54.816155))
sketch1.addConstraint(Sketcher.Constraint("DistanceY", 8, 3, -1, 1, 4.765237))
sketch1.addConstraint(Sketcher.Constraint("DistanceX", 10, 3, -1, 1, 12.651704))
sketch1.addConstraint(Sketcher.Constraint("DistanceY", 14, 3, -1, 1, 9.065238))
sketch1.addConstraint(Sketcher.Constraint("DistanceX", -1, 1, 16, 3, 25.448295))
sketch1.addConstraint(Sketcher.Constraint("DistanceY", -1, 1, 23, 3, 7.734764))
sketch1.addConstraint(Sketcher.Constraint("DistanceX", -1, 1, 25, 3, 7.348295))
sketch1.addConstraint(Sketcher.Constraint("DistanceY", -1, 1, 29, 3, 7.734764))
sketch1.addConstraint(Sketcher.Constraint("DistanceX", 31, 3, -1, 1, 18.251705))
sketch1.addConstraint(Sketcher.Constraint("DistanceX", 36, 3, -1, 1, 40.248075))
sketch1.addConstraint(Sketcher.Constraint("DistanceY", 36, 3, -1, 1, 3.675624))
sketch1.addConstraint(Sketcher.Constraint("DistanceX", 38, 3, -1, 1, 46.911462))
sketch1.addConstraint(Sketcher.Constraint("DistanceX", 41, 3, -1, 1, 56.051704))
sketch1.addConstraint(Sketcher.Constraint("DistanceY", 41, 3, -1, 1, 2.951494))
sketch1.addConstraint(Sketcher.Constraint("DistanceY", 43, 3, -1, 1, 0.451494))
sketch1.addConstraint(Sketcher.Constraint("DistanceX", 48, 3, -1, 1, 40.248037))
sketch1.addConstraint(Sketcher.Constraint("DistanceY", -1, 1, 52, 3, 0.772528))
sketch1.addConstraint(Sketcher.Constraint("DistanceX", 53, 3, -1, 1, 17.651705))
sketch1.addConstraint(Sketcher.Constraint("DistanceX", 54, 3, -1, 1, 20.855447))
sketch1.addConstraint(Sketcher.Constraint("DistanceX", -1, 1, 59, 3, 12.348295))
sketch1.addConstraint(Sketcher.Constraint("DistanceY", 65, 3, -1, 1, 2.951494))
sketch1.addConstraint(Sketcher.Constraint("DistanceX", 0, 2, -1, 1, 44.051705))
sketch1.addConstraint(Sketcher.Constraint("DistanceY", -1, 1, 6, 2, 1.862248))
sketch1.addConstraint(Sketcher.Constraint("DistanceX", 8, 2, -1, 1, 56.551705))
sketch1.addConstraint(Sketcher.Constraint("DistanceY", 10, 2, -1, 1, 9.065237))
sketch1.addConstraint(Sketcher.Constraint("DistanceX", -1, 1, 14, 2, 6.898295))
sketch1.addConstraint(Sketcher.Constraint("DistanceX", -1, 1, 23, 2, 12.948295))
sketch1.addConstraint(Sketcher.Constraint("DistanceY", -1, 1, 25, 2, 7.734763))
sketch1.addConstraint(Sketcher.Constraint("DistanceX", 29, 2, -1, 1, 12.651705))
sketch1.addConstraint(Sketcher.Constraint("DistanceY", -1, 1, 31, 2, 7.734763))
sketch1.addConstraint(Sketcher.Constraint("DistanceY", 41, 1, -1, 1, 2.951495))
sketch1.addConstraint(Sketcher.Constraint("DistanceX", 43, 1, -1, 1, 56.051705))
sketch1.addConstraint(Sketcher.Constraint("DistanceX", -1, 1, 59, 1, 15.031143))
sketch1.addConstraint(Sketcher.Constraint("DistanceY", 63, 1, -1, 1, 0.462618))
pad1 = body.newObject("PartDesign::Pad", "Pad")
pad1.Profile = sketch1
pad1.Length = 22

doc.recompute()
